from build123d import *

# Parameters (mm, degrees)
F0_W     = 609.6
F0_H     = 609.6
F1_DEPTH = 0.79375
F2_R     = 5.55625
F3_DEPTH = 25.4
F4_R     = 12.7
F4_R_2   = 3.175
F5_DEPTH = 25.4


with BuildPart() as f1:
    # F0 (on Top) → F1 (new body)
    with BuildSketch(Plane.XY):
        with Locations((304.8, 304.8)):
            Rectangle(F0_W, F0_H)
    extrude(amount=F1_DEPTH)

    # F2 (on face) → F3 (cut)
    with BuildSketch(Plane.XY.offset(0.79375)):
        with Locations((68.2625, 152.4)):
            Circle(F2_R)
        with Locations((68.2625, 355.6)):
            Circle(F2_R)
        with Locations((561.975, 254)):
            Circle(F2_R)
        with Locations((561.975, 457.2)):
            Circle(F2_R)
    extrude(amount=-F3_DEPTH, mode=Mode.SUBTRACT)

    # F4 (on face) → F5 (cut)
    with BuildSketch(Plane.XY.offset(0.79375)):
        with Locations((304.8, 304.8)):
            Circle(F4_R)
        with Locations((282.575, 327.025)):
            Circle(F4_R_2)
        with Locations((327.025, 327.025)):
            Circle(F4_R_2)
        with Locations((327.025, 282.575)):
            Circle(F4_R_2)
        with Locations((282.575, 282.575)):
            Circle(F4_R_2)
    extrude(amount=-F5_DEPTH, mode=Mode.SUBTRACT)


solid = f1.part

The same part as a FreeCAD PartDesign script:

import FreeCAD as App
import Part
import Sketcher
from FreeCAD import Vector
Q = App.Units.Quantity

doc = App.newDocument("Part")
body = doc.addObject("PartDesign::Body", "Body")

# Sketch on XY plane
sketch1 = body.newObject("Sketcher::SketchObject", "Sketch")
sketch1.AttachmentSupport = (doc.getObject("XY_Plane"), [""])
sketch1.MapMode = "FlatFace"
sketch1.addGeometry([
    Part.LineSegment(Vector(0, 610, 0), Vector(0, 0, 0)),
    Part.LineSegment(Vector(0, 0, 0), Vector(610, 0, 0)),
    Part.LineSegment(Vector(610, 0, 0), Vector(610, 610, 0)),
    Part.LineSegment(Vector(610, 610, 0), Vector(0, 610, 0)),
], False)
sketch1.addConstraint([
    Sketcher.Constraint("Coincident", 0, 2, 1, 1),
    Sketcher.Constraint("Coincident", 1, 2, 2, 1),
    Sketcher.Constraint("Coincident", 2, 2, 3, 1),
    Sketcher.Constraint("Coincident", 3, 2, 0, 1),
    Sketcher.Constraint("Vertical", 0),
    Sketcher.Constraint("Horizontal", 1),
    Sketcher.Constraint("Vertical", 2),
    Sketcher.Constraint("Horizontal", 3),
    Sketcher.Constraint("Coincident", 0, 2, -1, 1),
    Sketcher.Constraint("Equal", 3, 0),
    Sketcher.Constraint("DistanceX", 1, 1, 1, 2, Q("24 in")),
])
pad1 = body.newObject("PartDesign::Pad", "Pad")
pad1.Profile = sketch1
pad1.Length = Q("0.03125 in")

# Sketch on XY plane
sketch2 = body.newObject("Sketcher::SketchObject", "Sketch001")
sketch2.AttachmentSupport = (doc.getObject("XY_Plane"), [""])
sketch2.MapMode = "FlatFace"
sketch2.AttachmentOffset = App.Placement(Vector(0, 0, 0.03125 * 25.4), App.Rotation())
sketch2.addGeometry([
    Part.Circle(Vector(68, 152, 0), Vector(0, 0, 1), 6),
    Part.Circle(Vector(68, 356, 0), Vector(0, 0, 1), 6),
    Part.Circle(Vector(562, 254, 0), Vector(0, 0, 1), 6),
    Part.Circle(Vector(562, 457, 0), Vector(0, 0, 1), 6),
], False)
sketch2.addConstraint([
    Sketcher.Constraint("Equal", 0, 1),
    Sketcher.Constraint("Equal", 1, 2),
    Sketcher.Constraint("Equal", 2, 3),
    Sketcher.Constraint("Vertical", 0, 3, 1, 3),
    Sketcher.Constraint("Vertical", 2, 3, 3, 3),
    Sketcher.Constraint("Diameter", 0, Q("0.4375 in")),
    Sketcher.Constraint("DistanceY", -1, 1, 0, 3, Q("6 in")),
    Sketcher.Constraint("DistanceY", -1, 1, 1, 3, Q("14 in")),
    Sketcher.Constraint("DistanceY", -1, 1, 2, 3, Q("10 in")),
    Sketcher.Constraint("DistanceY", -1, 1, 3, 3, Q("18 in")),
    Sketcher.Constraint("DistanceX", -1, 1, 0, 3, Q("2.6875 in")),
    Sketcher.Constraint("DistanceX", -1, 1, 2, 3, Q("22.125 in")),
])
pocket1 = body.newObject("PartDesign::Pocket", "Pocket")
pocket1.Profile = sketch2
pocket1.Length = Q("1 in")

# Sketch on XY plane
sketch3 = body.newObject("Sketcher::SketchObject", "Sketch002")
sketch3.AttachmentSupport = (doc.getObject("XY_Plane"), [""])
sketch3.MapMode = "FlatFace"
sketch3.AttachmentOffset = App.Placement(Vector(0, 0, 0.03125 * 25.4), App.Rotation())
sketch3.addGeometry([
    Part.Circle(Vector(304.8, 304.8, 0), Vector(0, 0, 1), 12.7),  # 0
    Part.Circle(Vector(282.6, 327, 0), Vector(0, 0, 1), 3.2),  # 1
    Part.Circle(Vector(327, 327, 0), Vector(0, 0, 1), 3.2),  # 2
    Part.Circle(Vector(327, 282.6, 0), Vector(0, 0, 1), 3.2),  # 3
    Part.Circle(Vector(282.6, 282.6, 0), Vector(0, 0, 1), 3.2),  # 4
], False)
sketch3.addConstraint([
    Sketcher.Constraint("Equal", 1, 2),
    Sketcher.Constraint("Equal", 2, 3),
    Sketcher.Constraint("Equal", 3, 4),
    Sketcher.Constraint("Horizontal", 1, 3, 2, 3),
    Sketcher.Constraint("Horizontal", 3, 3, 4, 3),
    Sketcher.Constraint("Vertical", 2, 3, 3, 3),
    Sketcher.Constraint("Vertical", 1, 3, 4, 3),
    Sketcher.Constraint("Diameter", 0, Q("1 in")),
    Sketcher.Constraint("Diameter", 1, Q("0.25 in")),
    Sketcher.Constraint("DistanceX", -1, 1, 0, 3, Q("12 in")),
    Sketcher.Constraint("DistanceY", -1, 1, 0, 3, Q("12 in")),
    Sketcher.Constraint("DistanceX", 1, 3, 2, 3, Q("1.75 in")),
    Sketcher.Constraint("DistanceY", 3, 3, 2, 3, Q("1.75 in")),
    Sketcher.Constraint("DistanceX", -1, 1, 1, 3, Q("11.125 in")),
    Sketcher.Constraint("DistanceY", -1, 1, 1, 3, Q("12.875 in")),
])
pocket2 = body.newObject("PartDesign::Pocket", "Pocket001")
pocket2.Profile = sketch3
pocket2.Length = Q("1 in")

doc.recompute()
